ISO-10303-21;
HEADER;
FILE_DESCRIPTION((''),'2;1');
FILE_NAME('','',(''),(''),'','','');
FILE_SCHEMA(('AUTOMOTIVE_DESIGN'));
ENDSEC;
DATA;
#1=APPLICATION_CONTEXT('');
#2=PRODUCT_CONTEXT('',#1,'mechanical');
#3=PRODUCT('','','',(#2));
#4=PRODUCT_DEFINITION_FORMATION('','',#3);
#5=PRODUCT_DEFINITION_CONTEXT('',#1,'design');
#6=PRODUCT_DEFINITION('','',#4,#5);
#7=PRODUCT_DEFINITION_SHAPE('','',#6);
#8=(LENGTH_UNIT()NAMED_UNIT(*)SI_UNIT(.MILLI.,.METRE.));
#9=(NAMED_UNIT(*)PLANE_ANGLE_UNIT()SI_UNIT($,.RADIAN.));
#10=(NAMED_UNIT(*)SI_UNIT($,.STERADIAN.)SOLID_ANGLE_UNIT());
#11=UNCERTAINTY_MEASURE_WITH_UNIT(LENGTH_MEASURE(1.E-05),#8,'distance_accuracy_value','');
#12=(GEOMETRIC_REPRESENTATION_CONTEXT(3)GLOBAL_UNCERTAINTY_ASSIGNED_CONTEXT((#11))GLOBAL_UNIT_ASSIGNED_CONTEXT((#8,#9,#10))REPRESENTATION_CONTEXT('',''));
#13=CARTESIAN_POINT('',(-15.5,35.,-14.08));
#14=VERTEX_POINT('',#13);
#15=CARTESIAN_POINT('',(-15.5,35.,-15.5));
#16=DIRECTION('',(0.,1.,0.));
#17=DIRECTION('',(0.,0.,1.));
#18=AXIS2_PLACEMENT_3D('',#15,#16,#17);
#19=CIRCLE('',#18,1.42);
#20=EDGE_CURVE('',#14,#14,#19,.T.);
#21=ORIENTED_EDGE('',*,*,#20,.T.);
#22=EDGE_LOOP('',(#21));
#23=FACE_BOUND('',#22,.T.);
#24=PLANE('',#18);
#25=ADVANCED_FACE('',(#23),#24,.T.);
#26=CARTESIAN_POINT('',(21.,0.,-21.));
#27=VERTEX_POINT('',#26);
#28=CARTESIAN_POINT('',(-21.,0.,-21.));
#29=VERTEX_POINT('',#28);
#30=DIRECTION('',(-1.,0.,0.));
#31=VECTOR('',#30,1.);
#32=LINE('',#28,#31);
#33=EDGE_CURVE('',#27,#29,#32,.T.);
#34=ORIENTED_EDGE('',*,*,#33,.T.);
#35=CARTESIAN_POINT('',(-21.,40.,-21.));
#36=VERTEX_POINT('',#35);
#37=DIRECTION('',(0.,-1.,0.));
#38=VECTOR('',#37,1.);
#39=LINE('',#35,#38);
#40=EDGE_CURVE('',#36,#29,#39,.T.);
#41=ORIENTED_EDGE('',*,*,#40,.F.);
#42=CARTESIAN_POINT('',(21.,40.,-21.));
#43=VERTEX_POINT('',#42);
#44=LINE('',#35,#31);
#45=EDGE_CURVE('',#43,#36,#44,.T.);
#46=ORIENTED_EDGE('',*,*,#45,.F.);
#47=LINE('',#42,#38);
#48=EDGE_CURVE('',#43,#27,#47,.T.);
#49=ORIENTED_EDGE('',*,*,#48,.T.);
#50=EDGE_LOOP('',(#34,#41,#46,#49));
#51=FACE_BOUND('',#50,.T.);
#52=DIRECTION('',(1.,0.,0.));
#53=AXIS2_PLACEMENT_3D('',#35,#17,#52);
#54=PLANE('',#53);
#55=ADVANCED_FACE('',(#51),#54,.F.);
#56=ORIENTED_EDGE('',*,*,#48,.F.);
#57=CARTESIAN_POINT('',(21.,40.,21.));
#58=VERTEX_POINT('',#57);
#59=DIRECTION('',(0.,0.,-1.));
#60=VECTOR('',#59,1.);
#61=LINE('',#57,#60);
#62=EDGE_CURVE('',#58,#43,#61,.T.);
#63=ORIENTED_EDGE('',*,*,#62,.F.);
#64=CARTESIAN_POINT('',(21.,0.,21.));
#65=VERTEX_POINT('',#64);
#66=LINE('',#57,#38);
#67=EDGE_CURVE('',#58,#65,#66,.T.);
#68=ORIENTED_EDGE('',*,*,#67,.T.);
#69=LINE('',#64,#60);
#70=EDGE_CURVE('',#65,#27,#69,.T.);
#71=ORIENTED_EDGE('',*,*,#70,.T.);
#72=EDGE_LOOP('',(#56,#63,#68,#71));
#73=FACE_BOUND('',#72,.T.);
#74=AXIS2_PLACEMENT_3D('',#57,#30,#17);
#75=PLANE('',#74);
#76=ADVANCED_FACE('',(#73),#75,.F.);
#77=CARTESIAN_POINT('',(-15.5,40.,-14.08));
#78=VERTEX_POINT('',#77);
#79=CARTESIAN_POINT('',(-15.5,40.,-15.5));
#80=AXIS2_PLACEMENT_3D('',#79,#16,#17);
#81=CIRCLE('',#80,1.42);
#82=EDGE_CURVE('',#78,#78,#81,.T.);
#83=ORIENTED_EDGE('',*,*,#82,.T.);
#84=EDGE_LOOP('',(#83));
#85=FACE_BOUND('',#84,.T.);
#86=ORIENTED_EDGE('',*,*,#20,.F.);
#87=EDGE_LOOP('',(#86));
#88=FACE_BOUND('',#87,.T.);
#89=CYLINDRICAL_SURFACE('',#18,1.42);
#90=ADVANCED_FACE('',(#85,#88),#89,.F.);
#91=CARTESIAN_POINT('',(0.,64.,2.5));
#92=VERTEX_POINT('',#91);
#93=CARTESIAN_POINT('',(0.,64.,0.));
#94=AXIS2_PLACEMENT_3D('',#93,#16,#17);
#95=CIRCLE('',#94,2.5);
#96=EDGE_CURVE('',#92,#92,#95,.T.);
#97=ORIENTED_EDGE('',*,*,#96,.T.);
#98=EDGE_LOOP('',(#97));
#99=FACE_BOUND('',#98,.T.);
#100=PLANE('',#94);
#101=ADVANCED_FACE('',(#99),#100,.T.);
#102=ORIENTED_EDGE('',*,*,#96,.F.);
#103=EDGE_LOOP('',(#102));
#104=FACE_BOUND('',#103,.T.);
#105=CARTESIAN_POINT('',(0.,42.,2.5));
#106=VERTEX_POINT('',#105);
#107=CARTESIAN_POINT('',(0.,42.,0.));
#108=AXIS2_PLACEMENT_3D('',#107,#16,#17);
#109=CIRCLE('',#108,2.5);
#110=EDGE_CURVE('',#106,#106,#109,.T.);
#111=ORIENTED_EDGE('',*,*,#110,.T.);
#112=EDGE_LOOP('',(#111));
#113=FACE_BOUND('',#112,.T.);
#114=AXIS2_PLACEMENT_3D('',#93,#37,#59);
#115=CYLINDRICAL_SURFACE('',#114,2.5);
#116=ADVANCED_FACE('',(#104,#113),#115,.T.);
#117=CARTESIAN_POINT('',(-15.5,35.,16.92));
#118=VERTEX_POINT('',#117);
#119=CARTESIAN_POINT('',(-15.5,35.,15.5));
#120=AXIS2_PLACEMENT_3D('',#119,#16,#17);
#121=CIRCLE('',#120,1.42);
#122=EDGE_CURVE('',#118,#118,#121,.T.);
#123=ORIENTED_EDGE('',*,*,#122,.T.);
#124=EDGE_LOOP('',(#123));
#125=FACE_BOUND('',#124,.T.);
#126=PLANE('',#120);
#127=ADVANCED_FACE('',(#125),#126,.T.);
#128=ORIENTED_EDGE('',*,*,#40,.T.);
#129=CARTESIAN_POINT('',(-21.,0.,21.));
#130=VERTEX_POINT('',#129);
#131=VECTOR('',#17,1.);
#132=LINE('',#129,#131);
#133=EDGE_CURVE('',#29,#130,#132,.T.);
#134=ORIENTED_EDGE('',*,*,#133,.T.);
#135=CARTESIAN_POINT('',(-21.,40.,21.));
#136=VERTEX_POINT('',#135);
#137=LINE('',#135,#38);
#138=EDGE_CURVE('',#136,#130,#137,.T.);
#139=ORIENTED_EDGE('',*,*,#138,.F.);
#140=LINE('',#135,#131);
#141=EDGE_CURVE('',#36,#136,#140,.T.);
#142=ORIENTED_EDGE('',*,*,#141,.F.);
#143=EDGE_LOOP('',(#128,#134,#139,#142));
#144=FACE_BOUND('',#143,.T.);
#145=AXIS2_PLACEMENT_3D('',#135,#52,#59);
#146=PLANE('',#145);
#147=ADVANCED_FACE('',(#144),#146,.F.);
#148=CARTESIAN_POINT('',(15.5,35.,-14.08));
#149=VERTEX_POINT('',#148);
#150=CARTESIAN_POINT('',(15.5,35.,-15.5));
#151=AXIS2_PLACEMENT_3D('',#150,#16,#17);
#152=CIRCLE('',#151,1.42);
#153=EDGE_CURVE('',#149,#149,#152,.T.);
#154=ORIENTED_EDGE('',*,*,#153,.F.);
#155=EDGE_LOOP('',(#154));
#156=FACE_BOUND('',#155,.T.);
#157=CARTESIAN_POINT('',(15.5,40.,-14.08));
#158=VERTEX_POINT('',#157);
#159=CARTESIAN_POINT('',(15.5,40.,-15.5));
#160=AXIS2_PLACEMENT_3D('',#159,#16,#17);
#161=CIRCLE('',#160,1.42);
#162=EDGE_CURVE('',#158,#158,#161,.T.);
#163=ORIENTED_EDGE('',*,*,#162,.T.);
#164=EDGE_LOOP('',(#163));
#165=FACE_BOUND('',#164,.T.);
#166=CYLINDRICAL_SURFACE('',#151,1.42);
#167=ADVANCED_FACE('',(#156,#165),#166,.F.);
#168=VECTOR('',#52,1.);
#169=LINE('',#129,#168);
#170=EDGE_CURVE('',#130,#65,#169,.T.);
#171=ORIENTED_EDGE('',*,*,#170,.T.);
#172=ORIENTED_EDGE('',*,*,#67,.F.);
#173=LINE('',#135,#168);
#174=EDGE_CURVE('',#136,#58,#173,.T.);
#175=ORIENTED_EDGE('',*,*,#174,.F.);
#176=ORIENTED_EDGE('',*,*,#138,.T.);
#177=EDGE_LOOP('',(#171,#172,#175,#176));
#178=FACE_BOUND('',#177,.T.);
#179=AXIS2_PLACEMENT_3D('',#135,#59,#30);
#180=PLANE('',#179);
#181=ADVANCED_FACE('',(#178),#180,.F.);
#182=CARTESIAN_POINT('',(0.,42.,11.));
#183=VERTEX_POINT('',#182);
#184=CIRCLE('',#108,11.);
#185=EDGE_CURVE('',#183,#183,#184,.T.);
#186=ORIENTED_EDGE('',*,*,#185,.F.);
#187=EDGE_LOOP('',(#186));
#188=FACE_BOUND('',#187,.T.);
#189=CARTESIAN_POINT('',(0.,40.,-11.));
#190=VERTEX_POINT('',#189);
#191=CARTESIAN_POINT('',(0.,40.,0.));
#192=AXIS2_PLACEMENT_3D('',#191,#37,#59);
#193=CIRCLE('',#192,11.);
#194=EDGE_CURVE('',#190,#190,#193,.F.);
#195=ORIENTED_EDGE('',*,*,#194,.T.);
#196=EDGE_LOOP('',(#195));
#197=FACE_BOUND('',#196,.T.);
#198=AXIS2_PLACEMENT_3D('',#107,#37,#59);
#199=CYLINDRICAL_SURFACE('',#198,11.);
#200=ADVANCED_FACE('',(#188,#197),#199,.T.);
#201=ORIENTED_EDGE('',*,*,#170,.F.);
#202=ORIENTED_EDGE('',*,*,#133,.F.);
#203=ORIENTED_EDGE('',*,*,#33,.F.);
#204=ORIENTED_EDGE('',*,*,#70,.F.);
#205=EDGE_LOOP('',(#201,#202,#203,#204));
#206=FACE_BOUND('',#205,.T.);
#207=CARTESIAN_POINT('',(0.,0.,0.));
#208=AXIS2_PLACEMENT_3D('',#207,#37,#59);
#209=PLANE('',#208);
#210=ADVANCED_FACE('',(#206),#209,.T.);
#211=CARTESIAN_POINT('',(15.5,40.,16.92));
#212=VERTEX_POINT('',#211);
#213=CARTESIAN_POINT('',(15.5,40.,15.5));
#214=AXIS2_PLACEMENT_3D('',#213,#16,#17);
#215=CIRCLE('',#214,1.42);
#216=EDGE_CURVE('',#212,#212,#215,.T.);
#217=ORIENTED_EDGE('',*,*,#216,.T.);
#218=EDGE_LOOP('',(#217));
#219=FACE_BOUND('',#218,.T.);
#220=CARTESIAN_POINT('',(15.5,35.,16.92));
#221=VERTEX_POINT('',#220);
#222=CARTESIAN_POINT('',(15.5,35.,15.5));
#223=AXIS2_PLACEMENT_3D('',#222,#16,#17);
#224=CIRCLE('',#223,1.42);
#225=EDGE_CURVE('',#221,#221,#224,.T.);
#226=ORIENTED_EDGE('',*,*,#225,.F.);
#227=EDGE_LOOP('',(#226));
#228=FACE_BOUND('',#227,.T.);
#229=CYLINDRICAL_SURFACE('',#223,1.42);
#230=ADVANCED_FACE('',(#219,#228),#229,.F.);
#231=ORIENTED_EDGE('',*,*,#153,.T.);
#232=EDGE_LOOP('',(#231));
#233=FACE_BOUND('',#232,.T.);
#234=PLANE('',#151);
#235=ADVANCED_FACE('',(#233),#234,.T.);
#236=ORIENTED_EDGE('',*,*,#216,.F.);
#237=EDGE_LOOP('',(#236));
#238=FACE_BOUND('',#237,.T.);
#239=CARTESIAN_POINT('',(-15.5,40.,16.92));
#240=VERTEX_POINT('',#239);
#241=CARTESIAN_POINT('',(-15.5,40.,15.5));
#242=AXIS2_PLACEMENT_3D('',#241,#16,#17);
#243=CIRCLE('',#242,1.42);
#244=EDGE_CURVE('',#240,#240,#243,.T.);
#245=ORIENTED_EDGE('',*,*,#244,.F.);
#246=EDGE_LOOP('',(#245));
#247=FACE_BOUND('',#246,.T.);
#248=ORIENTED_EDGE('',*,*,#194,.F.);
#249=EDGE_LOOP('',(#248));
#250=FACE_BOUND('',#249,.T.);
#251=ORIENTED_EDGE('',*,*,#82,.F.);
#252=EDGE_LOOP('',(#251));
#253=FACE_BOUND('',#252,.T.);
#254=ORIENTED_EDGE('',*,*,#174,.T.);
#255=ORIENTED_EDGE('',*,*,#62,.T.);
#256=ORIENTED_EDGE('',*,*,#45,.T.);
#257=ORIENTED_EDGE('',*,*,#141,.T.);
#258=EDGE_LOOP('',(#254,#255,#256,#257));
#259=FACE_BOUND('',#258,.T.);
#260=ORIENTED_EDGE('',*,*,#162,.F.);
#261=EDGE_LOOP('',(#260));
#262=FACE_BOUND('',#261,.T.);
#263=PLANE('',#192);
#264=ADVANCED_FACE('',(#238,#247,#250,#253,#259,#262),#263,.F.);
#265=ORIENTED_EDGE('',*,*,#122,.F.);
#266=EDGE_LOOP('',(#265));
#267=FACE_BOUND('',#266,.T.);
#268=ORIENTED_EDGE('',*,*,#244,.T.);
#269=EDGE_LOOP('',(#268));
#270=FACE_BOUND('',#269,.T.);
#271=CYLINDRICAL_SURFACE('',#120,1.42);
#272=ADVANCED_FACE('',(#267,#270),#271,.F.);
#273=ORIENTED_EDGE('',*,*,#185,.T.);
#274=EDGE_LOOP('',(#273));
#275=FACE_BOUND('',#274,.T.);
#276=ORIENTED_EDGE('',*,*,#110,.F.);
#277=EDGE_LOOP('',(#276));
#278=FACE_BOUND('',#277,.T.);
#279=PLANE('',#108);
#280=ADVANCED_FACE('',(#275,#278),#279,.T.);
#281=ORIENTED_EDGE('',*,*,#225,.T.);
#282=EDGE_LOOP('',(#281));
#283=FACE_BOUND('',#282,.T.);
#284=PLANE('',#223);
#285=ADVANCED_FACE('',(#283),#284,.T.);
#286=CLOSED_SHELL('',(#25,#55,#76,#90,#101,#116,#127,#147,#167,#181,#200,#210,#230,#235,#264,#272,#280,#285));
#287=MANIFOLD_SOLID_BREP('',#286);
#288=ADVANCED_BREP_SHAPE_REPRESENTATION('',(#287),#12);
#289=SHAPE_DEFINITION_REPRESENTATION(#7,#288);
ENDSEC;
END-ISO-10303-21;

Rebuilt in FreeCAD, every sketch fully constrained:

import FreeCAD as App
import Part
import Sketcher

V = App.Vector


def add_polygon(sketch, points):
    """Adds a closed chain of lines whose ends are joined by coincident constraints."""
    first, n = sketch.GeometryCount, len(points)
    for a, b in zip(points, points[1:] + points[:1]):
        sketch.addGeometry(Part.LineSegment(App.Vector(*a, 0), App.Vector(*b, 0)), False)
    for i in range(n):
        sketch.addConstraint(Sketcher.Constraint("Coincident", first + i, 2, first + (i + 1) % n, 1))

doc = App.newDocument("Part")
body = doc.addObject("PartDesign::Body", "Body")

# Sketch on XZ plane
sketch1 = body.newObject("Sketcher::SketchObject", "Sketch")
sketch1.AttachmentSupport = (doc.getObject("XZ_Plane"), [""])
sketch1.MapMode = "FlatFace"
add_polygon(sketch1, [(-21, -21), (-21, 21), (21, 21), (21, -21)])  # lines 0-3
sketch1.addConstraint([
    Sketcher.Constraint("Vertical", 0),
    Sketcher.Constraint("Horizontal", 1),
    Sketcher.Constraint("Vertical", 2),
    Sketcher.Constraint("Horizontal", 3),
    Sketcher.Constraint("Symmetric", 0, 2, 2, 2, -1, 1),
    Sketcher.Constraint("Equal", 3, 0),
    Sketcher.Constraint("DistanceX", 1, 1, 1, 2, 42.0),
])
pad1 = body.newObject("PartDesign::Pad", "Pad")
pad1.Profile = sketch1
pad1.Length = 40
pad1.Reversed = True

# Sketch on XZ plane
sketch2 = body.newObject("Sketcher::SketchObject", "Sketch001")
sketch2.AttachmentSupport = (doc.getObject("XZ_Plane"), [""])
sketch2.MapMode = "FlatFace"
sketch2.AttachmentOffset = App.Placement(V(0, 0, -40), App.Rotation())
sketch2.addGeometry(Part.Circle(V(0, 0, 0), V(0, 0, 1), 11), False)
sketch2.addConstraint([
    Sketcher.Constraint("Coincident", 0, 3, -1, 1),
    Sketcher.Constraint("Diameter", 0, 22.0),
])
pad2 = body.newObject("PartDesign::Pad", "Pad001")
pad2.Profile = sketch2
pad2.Length = 2
pad2.Reversed = True

# Sketch on XZ plane
sketch3 = body.newObject("Sketcher::SketchObject", "Sketch002")
sketch3.AttachmentSupport = (doc.getObject("XZ_Plane"), [""])
sketch3.MapMode = "FlatFace"
sketch3.AttachmentOffset = App.Placement(V(0, 0, -42), App.Rotation())
sketch3.addGeometry(Part.Circle(V(0, 0, 0), V(0, 0, 1), 2.5), False)
sketch3.addConstraint([
    Sketcher.Constraint("Coincident", 0, 3, -1, 1),
    Sketcher.Constraint("Diameter", 0, 5.0),
])
pad3 = body.newObject("PartDesign::Pad", "Pad002")
pad3.Profile = sketch3
pad3.Length = 22
pad3.Reversed = True

# Sketch on XZ plane
sketch4 = body.newObject("Sketcher::SketchObject", "Sketch003")
sketch4.AttachmentSupport = (doc.getObject("XZ_Plane"), [""])
sketch4.MapMode = "FlatFace"
sketch4.AttachmentOffset = App.Placement(V(0, 0, -40), App.Rotation())
sketch4.addGeometry([
    Part.Circle(V(-15.5, -15.5, 0), V(0, 0, 1), 1.42),
    Part.Circle(V(15.5, -15.5, 0), V(0, 0, 1), 1.42),
    Part.Circle(V(15.5, 15.5, 0), V(0, 0, 1), 1.42),
    Part.Circle(V(-15.5, 15.5, 0), V(0, 0, 1), 1.42),
], False)
sketch4.addConstraint([
    Sketcher.Constraint("Equal", 0, 1),
    Sketcher.Constraint("Equal", 1, 2),
    Sketcher.Constraint("Equal", 2, 3),
    Sketcher.Constraint("Symmetric", 0, 3, 2, 3, -1, 1),
    Sketcher.Constraint("Symmetric", 1, 3, 3, 3, -1, 1),
    Sketcher.Constraint("Symmetric", 0, 3, 1, 3, -2),
    Sketcher.Constraint("Diameter", 0, 2.84),
    Sketcher.Constraint("DistanceX", 0, 3, 1, 3, 31.0),
    Sketcher.Constraint("DistanceY", 1, 3, 2, 3, 31.0),
])
pocket1 = body.newObject("PartDesign::Pocket", "Pocket")
pocket1.Profile = sketch4
pocket1.Length = 5
pocket1.Reversed = True

doc.recompute()
